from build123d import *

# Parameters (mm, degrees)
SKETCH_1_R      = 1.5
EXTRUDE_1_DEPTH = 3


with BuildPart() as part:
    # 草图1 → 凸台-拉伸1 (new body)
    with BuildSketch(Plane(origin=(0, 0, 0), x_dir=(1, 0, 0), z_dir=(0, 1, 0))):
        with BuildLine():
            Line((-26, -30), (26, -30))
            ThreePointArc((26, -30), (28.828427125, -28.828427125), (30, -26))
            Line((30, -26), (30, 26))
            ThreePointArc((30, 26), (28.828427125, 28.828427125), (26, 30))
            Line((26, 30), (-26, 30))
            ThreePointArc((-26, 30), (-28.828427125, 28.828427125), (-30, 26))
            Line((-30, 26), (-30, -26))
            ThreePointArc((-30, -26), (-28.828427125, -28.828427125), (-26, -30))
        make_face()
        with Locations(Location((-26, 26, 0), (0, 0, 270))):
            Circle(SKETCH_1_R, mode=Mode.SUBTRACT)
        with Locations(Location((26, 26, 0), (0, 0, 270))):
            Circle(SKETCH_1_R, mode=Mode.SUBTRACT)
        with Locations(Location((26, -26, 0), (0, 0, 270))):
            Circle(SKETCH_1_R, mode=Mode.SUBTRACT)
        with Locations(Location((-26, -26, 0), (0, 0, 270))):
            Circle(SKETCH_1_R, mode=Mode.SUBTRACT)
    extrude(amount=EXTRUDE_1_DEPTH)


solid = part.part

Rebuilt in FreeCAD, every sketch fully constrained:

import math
import FreeCAD as App
import Part
import Sketcher
from FreeCAD import Vector
Q = App.Units.Quantity

doc = App.newDocument("Part")
body = doc.addObject("PartDesign::Body", "Body")

# Sketch on XZ plane
sketch1 = body.newObject("Sketcher::SketchObject", "Sketch")
sketch1.AttachmentSupport = (doc.getObject("XZ_Plane"), [""])
sketch1.MapMode = "FlatFace"
sketch1.addGeometry([
    Part.LineSegment(Vector(-26, 30, 0), Vector(26, 30, 0)),  # 0
    Part.ArcOfCircle(Part.Circle(Vector(26, 26, 0), Vector(0, 0, 1), 4), math.radians(0), math.radians(90)),  # 1
    Part.LineSegment(Vector(30, 26, 0), Vector(30, -26, 0)),  # 2
    Part.ArcOfCircle(Part.Circle(Vector(26, -26, 0), Vector(0, 0, 1), 4), math.radians(-90), math.radians(0)),  # 3
    Part.LineSegment(Vector(26, -30, 0), Vector(-26, -30, 0)),  # 4
    Part.ArcOfCircle(Part.Circle(Vector(-26, -26, 0), Vector(0, 0, 1), 4), math.radians(180), math.radians(270)),  # 5
    Part.LineSegment(Vector(-30, -26, 0), Vector(-30, 26, 0)),  # 6
    Part.ArcOfCircle(Part.Circle(Vector(-26, 26, 0), Vector(0, 0, 1), 4), math.radians(90), math.radians(180)),  # 7
    Part.Circle(Vector(-26, 26, 0), Vector(0, 0, 1), 1.5),  # 8
    Part.Circle(Vector(26, 26, 0), Vector(0, 0, 1), 1.5),  # 9
    Part.Circle(Vector(-26, -26, 0), Vector(0, 0, 1), 1.5),  # 10
    Part.Circle(Vector(26, -26, 0), Vector(0, 0, 1), 1.5),  # 11
], False)
sketch1.addConstraint([
    Sketcher.Constraint("Tangent", 0, 2, 1, 2),
    Sketcher.Constraint("Tangent", 1, 1, 2, 1),
    Sketcher.Constraint("Tangent", 2, 2, 3, 2),
    Sketcher.Constraint("Tangent", 3, 1, 4, 1),
    Sketcher.Constraint("Tangent", 4, 2, 5, 2),
    Sketcher.Constraint("Tangent", 5, 1, 6, 1),
    Sketcher.Constraint("Tangent", 6, 2, 7, 2),
    Sketcher.Constraint("Tangent", 7, 1, 0, 1),
    Sketcher.Constraint("Horizontal", 0),
    Sketcher.Constraint("Vertical", 2),
    Sketcher.Constraint("Horizontal", 4),
    Sketcher.Constraint("Vertical", 6),
    Sketcher.Constraint("Coincident", 8, 3, 7, 3),
    Sketcher.Constraint("Coincident", 9, 3, 1, 3),
    Sketcher.Constraint("Coincident", 10, 3, 5, 3),
    Sketcher.Constraint("Coincident", 11, 3, 3, 3),
    Sketcher.Constraint("Equal", 1, 3),
    Sketcher.Constraint("Equal", 3, 5),
    Sketcher.Constraint("Equal", 5, 7),
    Sketcher.Constraint("Equal", 8, 9),
    Sketcher.Constraint("Equal", 9, 10),
    Sketcher.Constraint("Equal", 10, 11),
    Sketcher.Constraint("Symmetric", 1, 3, 5, 3, -1, 1),
    Sketcher.Constraint("Equal", 4, 2),
    Sketcher.Constraint("Diameter", 8, Q("3 mm")),
    Sketcher.Constraint("Radius", 1, Q("4 mm")),
    Sketcher.Constraint("DistanceX", 0, 1, 0, 2, Q("52 mm")),
])
pad1 = body.newObject("PartDesign::Pad", "Pad")
pad1.Profile = sketch1
pad1.Length = 3
pad1.Reversed = True

doc.recompute()
